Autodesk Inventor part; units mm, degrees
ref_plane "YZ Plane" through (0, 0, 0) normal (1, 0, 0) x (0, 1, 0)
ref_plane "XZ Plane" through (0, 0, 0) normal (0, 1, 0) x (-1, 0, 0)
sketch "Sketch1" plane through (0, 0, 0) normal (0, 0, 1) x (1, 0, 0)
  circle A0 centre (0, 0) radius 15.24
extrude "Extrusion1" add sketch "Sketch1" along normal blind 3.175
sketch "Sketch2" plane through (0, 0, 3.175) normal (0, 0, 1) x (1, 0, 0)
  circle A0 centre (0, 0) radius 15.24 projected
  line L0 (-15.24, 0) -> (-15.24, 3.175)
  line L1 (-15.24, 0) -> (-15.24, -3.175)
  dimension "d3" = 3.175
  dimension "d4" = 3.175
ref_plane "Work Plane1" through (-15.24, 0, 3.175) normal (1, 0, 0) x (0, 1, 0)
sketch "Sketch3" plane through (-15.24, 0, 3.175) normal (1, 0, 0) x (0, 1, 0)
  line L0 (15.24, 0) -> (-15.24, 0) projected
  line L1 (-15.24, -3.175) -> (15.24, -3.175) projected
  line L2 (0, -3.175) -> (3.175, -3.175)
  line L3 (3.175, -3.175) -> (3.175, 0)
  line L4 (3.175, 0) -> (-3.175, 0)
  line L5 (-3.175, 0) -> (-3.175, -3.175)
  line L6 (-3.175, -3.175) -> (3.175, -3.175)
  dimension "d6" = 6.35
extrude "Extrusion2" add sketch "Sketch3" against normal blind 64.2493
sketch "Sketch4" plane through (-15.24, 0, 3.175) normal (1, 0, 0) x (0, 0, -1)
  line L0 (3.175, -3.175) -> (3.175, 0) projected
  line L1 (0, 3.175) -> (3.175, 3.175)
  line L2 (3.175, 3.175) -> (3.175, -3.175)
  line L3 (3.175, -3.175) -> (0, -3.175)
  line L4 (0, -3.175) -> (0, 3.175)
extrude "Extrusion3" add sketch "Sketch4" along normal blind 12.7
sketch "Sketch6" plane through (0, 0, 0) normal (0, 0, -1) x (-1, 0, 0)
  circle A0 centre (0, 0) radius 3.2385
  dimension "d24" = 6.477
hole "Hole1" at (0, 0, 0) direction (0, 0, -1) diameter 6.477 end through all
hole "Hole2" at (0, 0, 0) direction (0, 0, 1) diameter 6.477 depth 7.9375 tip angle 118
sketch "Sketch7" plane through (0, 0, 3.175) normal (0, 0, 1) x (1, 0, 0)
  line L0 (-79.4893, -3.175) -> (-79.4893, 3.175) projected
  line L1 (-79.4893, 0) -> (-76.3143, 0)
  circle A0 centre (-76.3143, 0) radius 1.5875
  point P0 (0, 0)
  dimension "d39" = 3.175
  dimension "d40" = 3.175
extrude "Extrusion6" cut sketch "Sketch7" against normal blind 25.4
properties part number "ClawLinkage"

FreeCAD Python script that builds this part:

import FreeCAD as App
import Part
import Sketcher

V = App.Vector
Q = App.Units.Quantity

doc = App.newDocument("Part")
params = doc.addObject("Spreadsheet::Sheet", "Params")
for row, (alias, value) in enumerate([
    ("sketch1_diameter", "1.2 in"),
    ("pad1_length", "0.125 in"),
    ("sketch2_width", "0.25 in"),
    ("sketch2_height", "0.125 in"),
    ("pad2_length", "2.5295 in"),
    ("sketch3_width", "0.25 in"),
    ("sketch3_height", "0.125 in"),
    ("pad3_length", "0.5 in"),
    ("sketch4_diameter", "0.255 in"),
    ("hole_diameter", "0.255 in"),
    ("sketch5_diameter", "0.255 in"),
    ("hole2_diameter", "0.255 in"),
    ("hole2_depth", "0.3125 in"),
    ("sketch6_diameter", "0.125 in"),
    ("pocket1_length", "1 in"),
], start=1):
    params.set(f"A{row}", alias)
    params.set(f"B{row}", "=" + value)
    params.setAlias(f"B{row}", alias)

body = doc.addObject("PartDesign::Body", "Body")
body.AllowCompound = True

# Sketch on XY plane
sketch1 = doc.addObject("Sketcher::SketchObject", "Sketch")
body.addObject(sketch1)
sketch1.AttachmentSupport = (doc.XY_Plane, [""])
sketch1.MapMode = "FlatFace"
sketch1.addGeometry(Part.Circle(V(0, 0, 0), V(0, 0, 1), 15), False)
sketch1.addConstraint([
    Sketcher.Constraint("Coincident", 0, 3, -1, 1),
    Sketcher.Constraint("Diameter", 0, Q("1.2 in")),
])
sketch1.setExpression("Constraints[1]", "Params.sketch1_diameter")
pad1 = doc.addObject("PartDesign::Pad", "Pad")
body.addObject(pad1)
pad1.Profile = sketch1
pad1.setExpression("Length", "Params.pad1_length")

# Sketch on YZ plane
sketch2 = doc.addObject("Sketcher::SketchObject", "Sketch001")
body.addObject(sketch2)
sketch2.AttachmentSupport = (doc.YZ_Plane, [""])
sketch2.MapMode = "FlatFace"
sketch2.AttachmentOffset = App.Placement(V(0, 0, -0.6 * 25.4), App.Rotation())
sketch2.addGeometry([
    Part.LineSegment(V(3.2, 0, 0), V(3.2, 3.2, 0)),
    Part.LineSegment(V(3.2, 3.2, 0), V(-3.2, 3.2, 0)),
    Part.LineSegment(V(-3.2, 3.2, 0), V(-3.2, 0, 0)),
    Part.LineSegment(V(-3.2, 0, 0), V(3.2, 0, 0)),
], False)
sketch2.addConstraint([
    Sketcher.Constraint("Coincident", 0, 2, 1, 1),
    Sketcher.Constraint("Coincident", 1, 2, 2, 1),
    Sketcher.Constraint("Coincident", 2, 2, 3, 1),
    Sketcher.Constraint("Coincident", 3, 2, 0, 1),
    Sketcher.Constraint("Vertical", 0),
    Sketcher.Constraint("Horizontal", 1),
    Sketcher.Constraint("Vertical", 2),
    Sketcher.Constraint("Horizontal", 3),
    Sketcher.Constraint("Symmetric", 2, 2, 3, 2, -1, 1),
    Sketcher.Constraint("DistanceX", 1, 2, 1, 1, Q("0.25 in")),
    Sketcher.Constraint("DistanceY", 0, 1, 0, 2, Q("0.125 in")),
])
sketch2.setExpression("Constraints[9]", "Params.sketch2_width")
sketch2.setExpression("Constraints[10]", "Params.sketch2_height")
pad2 = doc.addObject("PartDesign::Pad", "Pad001")
body.addObject(pad2)
pad2.Profile = sketch2
pad2.setExpression("Length", "Params.pad2_length")
pad2.Reversed = True

# Sketch on YZ plane
sketch3 = doc.addObject("Sketcher::SketchObject", "Sketch002")
body.addObject(sketch3)
sketch3.AttachmentSupport = (doc.YZ_Plane, [""])
sketch3.MapMode = "FlatFace"
sketch3.AttachmentOffset = App.Placement(V(0, 0, -0.6 * 25.4), App.Rotation())
sketch3.addGeometry([
    Part.LineSegment(V(-3.2, 3.2, 0), V(-3.2, 0, 0)),
    Part.LineSegment(V(-3.2, 0, 0), V(3.2, 0, 0)),
    Part.LineSegment(V(3.2, 0, 0), V(3.2, 3.2, 0)),
    Part.LineSegment(V(3.2, 3.2, 0), V(-3.2, 3.2, 0)),
], False)
sketch3.addConstraint([
    Sketcher.Constraint("Coincident", 0, 2, 1, 1),
    Sketcher.Constraint("Coincident", 1, 2, 2, 1),
    Sketcher.Constraint("Coincident", 2, 2, 3, 1),
    Sketcher.Constraint("Coincident", 3, 2, 0, 1),
    Sketcher.Constraint("Vertical", 0),
    Sketcher.Constraint("Horizontal", 1),
    Sketcher.Constraint("Vertical", 2),
    Sketcher.Constraint("Horizontal", 3),
    Sketcher.Constraint("Symmetric", 0, 2, 1, 2, -1, 1),
    Sketcher.Constraint("DistanceX", 1, 1, 1, 2, Q("0.25 in")),
    Sketcher.Constraint("DistanceY", 0, 2, 0, 1, Q("0.125 in")),
])
sketch3.setExpression("Constraints[9]", "Params.sketch3_width")
sketch3.setExpression("Constraints[10]", "Params.sketch3_height")
pad3 = doc.addObject("PartDesign::Pad", "Pad002")
body.addObject(pad3)
pad3.Profile = sketch3
pad3.setExpression("Length", "Params.pad3_length")

# Sketch on XY plane
sketch4 = doc.addObject("Sketcher::SketchObject", "Sketch003")
body.addObject(sketch4)
sketch4.AttachmentSupport = (doc.XY_Plane, [""])
sketch4.MapMode = "FlatFace"
sketch4.addGeometry(Part.Circle(V(0, 0, 0), V(0, 0, 1), 3.2), False)
sketch4.addConstraint([
    Sketcher.Constraint("Coincident", 0, 3, -1, 1),
    Sketcher.Constraint("Diameter", 0, Q("0.255 in")),
])
sketch4.setExpression("Constraints[1]", "Params.sketch4_diameter")
doc.recompute()
hole = doc.addObject("PartDesign::Hole", "Hole")
body.addObject(hole)
hole.Profile = sketch4
hole.ThreadType = "None"
hole.setExpression("Diameter", "Params.hole_diameter")
hole.DepthType = "ThroughAll"

# Sketch on XY plane
sketch5 = doc.addObject("Sketcher::SketchObject", "Sketch004")
body.addObject(sketch5)
sketch5.AttachmentSupport = (doc.XY_Plane, [""])
sketch5.MapMode = "FlatFace"
sketch5.addGeometry(Part.Circle(V(0, 0, 0), V(0, 0, 1), 3.2), False)
sketch5.addConstraint([
    Sketcher.Constraint("Coincident", 0, 3, -1, 1),
    Sketcher.Constraint("Diameter", 0, Q("0.255 in")),
])
sketch5.setExpression("Constraints[1]", "Params.sketch5_diameter")
doc.recompute()
hole2 = doc.addObject("PartDesign::Hole", "Hole001")
body.addObject(hole2)
hole2.Profile = sketch5
hole2.ThreadType = "None"
hole2.setExpression("Diameter", "Params.hole2_diameter")
hole2.DepthType = "Dimension"
hole2.setExpression("Depth", "Params.hole2_depth")
hole2.DrillPoint = "Angled"
hole2.DrillPointAngle = 118
hole2.Reversed = True

# Sketch on XY plane
sketch6 = doc.addObject("Sketcher::SketchObject", "Sketch005")
body.addObject(sketch6)
sketch6.AttachmentSupport = (doc.XY_Plane, [""])
sketch6.MapMode = "FlatFace"
sketch6.AttachmentOffset = App.Placement(V(0, 0, 0.125 * 25.4), App.Rotation())
sketch6.addGeometry(Part.Circle(V(-76.3, 0, 0), V(0, 0, 1), 1.6), False)
sketch6.addConstraint([
    Sketcher.Constraint("PointOnObject", 0, 3, -1),
    Sketcher.Constraint("Diameter", 0, Q("0.125 in")),
    Sketcher.Constraint("DistanceX", 0, 3, -1, 1, Q("3.0045 in")),
])
sketch6.setExpression("Constraints[1]", "Params.sketch6_diameter")
pocket1 = doc.addObject("PartDesign::Pocket", "Pocket")
body.addObject(pocket1)
pocket1.Profile = sketch6
pocket1.setExpression("Length", "Params.pocket1_length")

doc.recompute()
